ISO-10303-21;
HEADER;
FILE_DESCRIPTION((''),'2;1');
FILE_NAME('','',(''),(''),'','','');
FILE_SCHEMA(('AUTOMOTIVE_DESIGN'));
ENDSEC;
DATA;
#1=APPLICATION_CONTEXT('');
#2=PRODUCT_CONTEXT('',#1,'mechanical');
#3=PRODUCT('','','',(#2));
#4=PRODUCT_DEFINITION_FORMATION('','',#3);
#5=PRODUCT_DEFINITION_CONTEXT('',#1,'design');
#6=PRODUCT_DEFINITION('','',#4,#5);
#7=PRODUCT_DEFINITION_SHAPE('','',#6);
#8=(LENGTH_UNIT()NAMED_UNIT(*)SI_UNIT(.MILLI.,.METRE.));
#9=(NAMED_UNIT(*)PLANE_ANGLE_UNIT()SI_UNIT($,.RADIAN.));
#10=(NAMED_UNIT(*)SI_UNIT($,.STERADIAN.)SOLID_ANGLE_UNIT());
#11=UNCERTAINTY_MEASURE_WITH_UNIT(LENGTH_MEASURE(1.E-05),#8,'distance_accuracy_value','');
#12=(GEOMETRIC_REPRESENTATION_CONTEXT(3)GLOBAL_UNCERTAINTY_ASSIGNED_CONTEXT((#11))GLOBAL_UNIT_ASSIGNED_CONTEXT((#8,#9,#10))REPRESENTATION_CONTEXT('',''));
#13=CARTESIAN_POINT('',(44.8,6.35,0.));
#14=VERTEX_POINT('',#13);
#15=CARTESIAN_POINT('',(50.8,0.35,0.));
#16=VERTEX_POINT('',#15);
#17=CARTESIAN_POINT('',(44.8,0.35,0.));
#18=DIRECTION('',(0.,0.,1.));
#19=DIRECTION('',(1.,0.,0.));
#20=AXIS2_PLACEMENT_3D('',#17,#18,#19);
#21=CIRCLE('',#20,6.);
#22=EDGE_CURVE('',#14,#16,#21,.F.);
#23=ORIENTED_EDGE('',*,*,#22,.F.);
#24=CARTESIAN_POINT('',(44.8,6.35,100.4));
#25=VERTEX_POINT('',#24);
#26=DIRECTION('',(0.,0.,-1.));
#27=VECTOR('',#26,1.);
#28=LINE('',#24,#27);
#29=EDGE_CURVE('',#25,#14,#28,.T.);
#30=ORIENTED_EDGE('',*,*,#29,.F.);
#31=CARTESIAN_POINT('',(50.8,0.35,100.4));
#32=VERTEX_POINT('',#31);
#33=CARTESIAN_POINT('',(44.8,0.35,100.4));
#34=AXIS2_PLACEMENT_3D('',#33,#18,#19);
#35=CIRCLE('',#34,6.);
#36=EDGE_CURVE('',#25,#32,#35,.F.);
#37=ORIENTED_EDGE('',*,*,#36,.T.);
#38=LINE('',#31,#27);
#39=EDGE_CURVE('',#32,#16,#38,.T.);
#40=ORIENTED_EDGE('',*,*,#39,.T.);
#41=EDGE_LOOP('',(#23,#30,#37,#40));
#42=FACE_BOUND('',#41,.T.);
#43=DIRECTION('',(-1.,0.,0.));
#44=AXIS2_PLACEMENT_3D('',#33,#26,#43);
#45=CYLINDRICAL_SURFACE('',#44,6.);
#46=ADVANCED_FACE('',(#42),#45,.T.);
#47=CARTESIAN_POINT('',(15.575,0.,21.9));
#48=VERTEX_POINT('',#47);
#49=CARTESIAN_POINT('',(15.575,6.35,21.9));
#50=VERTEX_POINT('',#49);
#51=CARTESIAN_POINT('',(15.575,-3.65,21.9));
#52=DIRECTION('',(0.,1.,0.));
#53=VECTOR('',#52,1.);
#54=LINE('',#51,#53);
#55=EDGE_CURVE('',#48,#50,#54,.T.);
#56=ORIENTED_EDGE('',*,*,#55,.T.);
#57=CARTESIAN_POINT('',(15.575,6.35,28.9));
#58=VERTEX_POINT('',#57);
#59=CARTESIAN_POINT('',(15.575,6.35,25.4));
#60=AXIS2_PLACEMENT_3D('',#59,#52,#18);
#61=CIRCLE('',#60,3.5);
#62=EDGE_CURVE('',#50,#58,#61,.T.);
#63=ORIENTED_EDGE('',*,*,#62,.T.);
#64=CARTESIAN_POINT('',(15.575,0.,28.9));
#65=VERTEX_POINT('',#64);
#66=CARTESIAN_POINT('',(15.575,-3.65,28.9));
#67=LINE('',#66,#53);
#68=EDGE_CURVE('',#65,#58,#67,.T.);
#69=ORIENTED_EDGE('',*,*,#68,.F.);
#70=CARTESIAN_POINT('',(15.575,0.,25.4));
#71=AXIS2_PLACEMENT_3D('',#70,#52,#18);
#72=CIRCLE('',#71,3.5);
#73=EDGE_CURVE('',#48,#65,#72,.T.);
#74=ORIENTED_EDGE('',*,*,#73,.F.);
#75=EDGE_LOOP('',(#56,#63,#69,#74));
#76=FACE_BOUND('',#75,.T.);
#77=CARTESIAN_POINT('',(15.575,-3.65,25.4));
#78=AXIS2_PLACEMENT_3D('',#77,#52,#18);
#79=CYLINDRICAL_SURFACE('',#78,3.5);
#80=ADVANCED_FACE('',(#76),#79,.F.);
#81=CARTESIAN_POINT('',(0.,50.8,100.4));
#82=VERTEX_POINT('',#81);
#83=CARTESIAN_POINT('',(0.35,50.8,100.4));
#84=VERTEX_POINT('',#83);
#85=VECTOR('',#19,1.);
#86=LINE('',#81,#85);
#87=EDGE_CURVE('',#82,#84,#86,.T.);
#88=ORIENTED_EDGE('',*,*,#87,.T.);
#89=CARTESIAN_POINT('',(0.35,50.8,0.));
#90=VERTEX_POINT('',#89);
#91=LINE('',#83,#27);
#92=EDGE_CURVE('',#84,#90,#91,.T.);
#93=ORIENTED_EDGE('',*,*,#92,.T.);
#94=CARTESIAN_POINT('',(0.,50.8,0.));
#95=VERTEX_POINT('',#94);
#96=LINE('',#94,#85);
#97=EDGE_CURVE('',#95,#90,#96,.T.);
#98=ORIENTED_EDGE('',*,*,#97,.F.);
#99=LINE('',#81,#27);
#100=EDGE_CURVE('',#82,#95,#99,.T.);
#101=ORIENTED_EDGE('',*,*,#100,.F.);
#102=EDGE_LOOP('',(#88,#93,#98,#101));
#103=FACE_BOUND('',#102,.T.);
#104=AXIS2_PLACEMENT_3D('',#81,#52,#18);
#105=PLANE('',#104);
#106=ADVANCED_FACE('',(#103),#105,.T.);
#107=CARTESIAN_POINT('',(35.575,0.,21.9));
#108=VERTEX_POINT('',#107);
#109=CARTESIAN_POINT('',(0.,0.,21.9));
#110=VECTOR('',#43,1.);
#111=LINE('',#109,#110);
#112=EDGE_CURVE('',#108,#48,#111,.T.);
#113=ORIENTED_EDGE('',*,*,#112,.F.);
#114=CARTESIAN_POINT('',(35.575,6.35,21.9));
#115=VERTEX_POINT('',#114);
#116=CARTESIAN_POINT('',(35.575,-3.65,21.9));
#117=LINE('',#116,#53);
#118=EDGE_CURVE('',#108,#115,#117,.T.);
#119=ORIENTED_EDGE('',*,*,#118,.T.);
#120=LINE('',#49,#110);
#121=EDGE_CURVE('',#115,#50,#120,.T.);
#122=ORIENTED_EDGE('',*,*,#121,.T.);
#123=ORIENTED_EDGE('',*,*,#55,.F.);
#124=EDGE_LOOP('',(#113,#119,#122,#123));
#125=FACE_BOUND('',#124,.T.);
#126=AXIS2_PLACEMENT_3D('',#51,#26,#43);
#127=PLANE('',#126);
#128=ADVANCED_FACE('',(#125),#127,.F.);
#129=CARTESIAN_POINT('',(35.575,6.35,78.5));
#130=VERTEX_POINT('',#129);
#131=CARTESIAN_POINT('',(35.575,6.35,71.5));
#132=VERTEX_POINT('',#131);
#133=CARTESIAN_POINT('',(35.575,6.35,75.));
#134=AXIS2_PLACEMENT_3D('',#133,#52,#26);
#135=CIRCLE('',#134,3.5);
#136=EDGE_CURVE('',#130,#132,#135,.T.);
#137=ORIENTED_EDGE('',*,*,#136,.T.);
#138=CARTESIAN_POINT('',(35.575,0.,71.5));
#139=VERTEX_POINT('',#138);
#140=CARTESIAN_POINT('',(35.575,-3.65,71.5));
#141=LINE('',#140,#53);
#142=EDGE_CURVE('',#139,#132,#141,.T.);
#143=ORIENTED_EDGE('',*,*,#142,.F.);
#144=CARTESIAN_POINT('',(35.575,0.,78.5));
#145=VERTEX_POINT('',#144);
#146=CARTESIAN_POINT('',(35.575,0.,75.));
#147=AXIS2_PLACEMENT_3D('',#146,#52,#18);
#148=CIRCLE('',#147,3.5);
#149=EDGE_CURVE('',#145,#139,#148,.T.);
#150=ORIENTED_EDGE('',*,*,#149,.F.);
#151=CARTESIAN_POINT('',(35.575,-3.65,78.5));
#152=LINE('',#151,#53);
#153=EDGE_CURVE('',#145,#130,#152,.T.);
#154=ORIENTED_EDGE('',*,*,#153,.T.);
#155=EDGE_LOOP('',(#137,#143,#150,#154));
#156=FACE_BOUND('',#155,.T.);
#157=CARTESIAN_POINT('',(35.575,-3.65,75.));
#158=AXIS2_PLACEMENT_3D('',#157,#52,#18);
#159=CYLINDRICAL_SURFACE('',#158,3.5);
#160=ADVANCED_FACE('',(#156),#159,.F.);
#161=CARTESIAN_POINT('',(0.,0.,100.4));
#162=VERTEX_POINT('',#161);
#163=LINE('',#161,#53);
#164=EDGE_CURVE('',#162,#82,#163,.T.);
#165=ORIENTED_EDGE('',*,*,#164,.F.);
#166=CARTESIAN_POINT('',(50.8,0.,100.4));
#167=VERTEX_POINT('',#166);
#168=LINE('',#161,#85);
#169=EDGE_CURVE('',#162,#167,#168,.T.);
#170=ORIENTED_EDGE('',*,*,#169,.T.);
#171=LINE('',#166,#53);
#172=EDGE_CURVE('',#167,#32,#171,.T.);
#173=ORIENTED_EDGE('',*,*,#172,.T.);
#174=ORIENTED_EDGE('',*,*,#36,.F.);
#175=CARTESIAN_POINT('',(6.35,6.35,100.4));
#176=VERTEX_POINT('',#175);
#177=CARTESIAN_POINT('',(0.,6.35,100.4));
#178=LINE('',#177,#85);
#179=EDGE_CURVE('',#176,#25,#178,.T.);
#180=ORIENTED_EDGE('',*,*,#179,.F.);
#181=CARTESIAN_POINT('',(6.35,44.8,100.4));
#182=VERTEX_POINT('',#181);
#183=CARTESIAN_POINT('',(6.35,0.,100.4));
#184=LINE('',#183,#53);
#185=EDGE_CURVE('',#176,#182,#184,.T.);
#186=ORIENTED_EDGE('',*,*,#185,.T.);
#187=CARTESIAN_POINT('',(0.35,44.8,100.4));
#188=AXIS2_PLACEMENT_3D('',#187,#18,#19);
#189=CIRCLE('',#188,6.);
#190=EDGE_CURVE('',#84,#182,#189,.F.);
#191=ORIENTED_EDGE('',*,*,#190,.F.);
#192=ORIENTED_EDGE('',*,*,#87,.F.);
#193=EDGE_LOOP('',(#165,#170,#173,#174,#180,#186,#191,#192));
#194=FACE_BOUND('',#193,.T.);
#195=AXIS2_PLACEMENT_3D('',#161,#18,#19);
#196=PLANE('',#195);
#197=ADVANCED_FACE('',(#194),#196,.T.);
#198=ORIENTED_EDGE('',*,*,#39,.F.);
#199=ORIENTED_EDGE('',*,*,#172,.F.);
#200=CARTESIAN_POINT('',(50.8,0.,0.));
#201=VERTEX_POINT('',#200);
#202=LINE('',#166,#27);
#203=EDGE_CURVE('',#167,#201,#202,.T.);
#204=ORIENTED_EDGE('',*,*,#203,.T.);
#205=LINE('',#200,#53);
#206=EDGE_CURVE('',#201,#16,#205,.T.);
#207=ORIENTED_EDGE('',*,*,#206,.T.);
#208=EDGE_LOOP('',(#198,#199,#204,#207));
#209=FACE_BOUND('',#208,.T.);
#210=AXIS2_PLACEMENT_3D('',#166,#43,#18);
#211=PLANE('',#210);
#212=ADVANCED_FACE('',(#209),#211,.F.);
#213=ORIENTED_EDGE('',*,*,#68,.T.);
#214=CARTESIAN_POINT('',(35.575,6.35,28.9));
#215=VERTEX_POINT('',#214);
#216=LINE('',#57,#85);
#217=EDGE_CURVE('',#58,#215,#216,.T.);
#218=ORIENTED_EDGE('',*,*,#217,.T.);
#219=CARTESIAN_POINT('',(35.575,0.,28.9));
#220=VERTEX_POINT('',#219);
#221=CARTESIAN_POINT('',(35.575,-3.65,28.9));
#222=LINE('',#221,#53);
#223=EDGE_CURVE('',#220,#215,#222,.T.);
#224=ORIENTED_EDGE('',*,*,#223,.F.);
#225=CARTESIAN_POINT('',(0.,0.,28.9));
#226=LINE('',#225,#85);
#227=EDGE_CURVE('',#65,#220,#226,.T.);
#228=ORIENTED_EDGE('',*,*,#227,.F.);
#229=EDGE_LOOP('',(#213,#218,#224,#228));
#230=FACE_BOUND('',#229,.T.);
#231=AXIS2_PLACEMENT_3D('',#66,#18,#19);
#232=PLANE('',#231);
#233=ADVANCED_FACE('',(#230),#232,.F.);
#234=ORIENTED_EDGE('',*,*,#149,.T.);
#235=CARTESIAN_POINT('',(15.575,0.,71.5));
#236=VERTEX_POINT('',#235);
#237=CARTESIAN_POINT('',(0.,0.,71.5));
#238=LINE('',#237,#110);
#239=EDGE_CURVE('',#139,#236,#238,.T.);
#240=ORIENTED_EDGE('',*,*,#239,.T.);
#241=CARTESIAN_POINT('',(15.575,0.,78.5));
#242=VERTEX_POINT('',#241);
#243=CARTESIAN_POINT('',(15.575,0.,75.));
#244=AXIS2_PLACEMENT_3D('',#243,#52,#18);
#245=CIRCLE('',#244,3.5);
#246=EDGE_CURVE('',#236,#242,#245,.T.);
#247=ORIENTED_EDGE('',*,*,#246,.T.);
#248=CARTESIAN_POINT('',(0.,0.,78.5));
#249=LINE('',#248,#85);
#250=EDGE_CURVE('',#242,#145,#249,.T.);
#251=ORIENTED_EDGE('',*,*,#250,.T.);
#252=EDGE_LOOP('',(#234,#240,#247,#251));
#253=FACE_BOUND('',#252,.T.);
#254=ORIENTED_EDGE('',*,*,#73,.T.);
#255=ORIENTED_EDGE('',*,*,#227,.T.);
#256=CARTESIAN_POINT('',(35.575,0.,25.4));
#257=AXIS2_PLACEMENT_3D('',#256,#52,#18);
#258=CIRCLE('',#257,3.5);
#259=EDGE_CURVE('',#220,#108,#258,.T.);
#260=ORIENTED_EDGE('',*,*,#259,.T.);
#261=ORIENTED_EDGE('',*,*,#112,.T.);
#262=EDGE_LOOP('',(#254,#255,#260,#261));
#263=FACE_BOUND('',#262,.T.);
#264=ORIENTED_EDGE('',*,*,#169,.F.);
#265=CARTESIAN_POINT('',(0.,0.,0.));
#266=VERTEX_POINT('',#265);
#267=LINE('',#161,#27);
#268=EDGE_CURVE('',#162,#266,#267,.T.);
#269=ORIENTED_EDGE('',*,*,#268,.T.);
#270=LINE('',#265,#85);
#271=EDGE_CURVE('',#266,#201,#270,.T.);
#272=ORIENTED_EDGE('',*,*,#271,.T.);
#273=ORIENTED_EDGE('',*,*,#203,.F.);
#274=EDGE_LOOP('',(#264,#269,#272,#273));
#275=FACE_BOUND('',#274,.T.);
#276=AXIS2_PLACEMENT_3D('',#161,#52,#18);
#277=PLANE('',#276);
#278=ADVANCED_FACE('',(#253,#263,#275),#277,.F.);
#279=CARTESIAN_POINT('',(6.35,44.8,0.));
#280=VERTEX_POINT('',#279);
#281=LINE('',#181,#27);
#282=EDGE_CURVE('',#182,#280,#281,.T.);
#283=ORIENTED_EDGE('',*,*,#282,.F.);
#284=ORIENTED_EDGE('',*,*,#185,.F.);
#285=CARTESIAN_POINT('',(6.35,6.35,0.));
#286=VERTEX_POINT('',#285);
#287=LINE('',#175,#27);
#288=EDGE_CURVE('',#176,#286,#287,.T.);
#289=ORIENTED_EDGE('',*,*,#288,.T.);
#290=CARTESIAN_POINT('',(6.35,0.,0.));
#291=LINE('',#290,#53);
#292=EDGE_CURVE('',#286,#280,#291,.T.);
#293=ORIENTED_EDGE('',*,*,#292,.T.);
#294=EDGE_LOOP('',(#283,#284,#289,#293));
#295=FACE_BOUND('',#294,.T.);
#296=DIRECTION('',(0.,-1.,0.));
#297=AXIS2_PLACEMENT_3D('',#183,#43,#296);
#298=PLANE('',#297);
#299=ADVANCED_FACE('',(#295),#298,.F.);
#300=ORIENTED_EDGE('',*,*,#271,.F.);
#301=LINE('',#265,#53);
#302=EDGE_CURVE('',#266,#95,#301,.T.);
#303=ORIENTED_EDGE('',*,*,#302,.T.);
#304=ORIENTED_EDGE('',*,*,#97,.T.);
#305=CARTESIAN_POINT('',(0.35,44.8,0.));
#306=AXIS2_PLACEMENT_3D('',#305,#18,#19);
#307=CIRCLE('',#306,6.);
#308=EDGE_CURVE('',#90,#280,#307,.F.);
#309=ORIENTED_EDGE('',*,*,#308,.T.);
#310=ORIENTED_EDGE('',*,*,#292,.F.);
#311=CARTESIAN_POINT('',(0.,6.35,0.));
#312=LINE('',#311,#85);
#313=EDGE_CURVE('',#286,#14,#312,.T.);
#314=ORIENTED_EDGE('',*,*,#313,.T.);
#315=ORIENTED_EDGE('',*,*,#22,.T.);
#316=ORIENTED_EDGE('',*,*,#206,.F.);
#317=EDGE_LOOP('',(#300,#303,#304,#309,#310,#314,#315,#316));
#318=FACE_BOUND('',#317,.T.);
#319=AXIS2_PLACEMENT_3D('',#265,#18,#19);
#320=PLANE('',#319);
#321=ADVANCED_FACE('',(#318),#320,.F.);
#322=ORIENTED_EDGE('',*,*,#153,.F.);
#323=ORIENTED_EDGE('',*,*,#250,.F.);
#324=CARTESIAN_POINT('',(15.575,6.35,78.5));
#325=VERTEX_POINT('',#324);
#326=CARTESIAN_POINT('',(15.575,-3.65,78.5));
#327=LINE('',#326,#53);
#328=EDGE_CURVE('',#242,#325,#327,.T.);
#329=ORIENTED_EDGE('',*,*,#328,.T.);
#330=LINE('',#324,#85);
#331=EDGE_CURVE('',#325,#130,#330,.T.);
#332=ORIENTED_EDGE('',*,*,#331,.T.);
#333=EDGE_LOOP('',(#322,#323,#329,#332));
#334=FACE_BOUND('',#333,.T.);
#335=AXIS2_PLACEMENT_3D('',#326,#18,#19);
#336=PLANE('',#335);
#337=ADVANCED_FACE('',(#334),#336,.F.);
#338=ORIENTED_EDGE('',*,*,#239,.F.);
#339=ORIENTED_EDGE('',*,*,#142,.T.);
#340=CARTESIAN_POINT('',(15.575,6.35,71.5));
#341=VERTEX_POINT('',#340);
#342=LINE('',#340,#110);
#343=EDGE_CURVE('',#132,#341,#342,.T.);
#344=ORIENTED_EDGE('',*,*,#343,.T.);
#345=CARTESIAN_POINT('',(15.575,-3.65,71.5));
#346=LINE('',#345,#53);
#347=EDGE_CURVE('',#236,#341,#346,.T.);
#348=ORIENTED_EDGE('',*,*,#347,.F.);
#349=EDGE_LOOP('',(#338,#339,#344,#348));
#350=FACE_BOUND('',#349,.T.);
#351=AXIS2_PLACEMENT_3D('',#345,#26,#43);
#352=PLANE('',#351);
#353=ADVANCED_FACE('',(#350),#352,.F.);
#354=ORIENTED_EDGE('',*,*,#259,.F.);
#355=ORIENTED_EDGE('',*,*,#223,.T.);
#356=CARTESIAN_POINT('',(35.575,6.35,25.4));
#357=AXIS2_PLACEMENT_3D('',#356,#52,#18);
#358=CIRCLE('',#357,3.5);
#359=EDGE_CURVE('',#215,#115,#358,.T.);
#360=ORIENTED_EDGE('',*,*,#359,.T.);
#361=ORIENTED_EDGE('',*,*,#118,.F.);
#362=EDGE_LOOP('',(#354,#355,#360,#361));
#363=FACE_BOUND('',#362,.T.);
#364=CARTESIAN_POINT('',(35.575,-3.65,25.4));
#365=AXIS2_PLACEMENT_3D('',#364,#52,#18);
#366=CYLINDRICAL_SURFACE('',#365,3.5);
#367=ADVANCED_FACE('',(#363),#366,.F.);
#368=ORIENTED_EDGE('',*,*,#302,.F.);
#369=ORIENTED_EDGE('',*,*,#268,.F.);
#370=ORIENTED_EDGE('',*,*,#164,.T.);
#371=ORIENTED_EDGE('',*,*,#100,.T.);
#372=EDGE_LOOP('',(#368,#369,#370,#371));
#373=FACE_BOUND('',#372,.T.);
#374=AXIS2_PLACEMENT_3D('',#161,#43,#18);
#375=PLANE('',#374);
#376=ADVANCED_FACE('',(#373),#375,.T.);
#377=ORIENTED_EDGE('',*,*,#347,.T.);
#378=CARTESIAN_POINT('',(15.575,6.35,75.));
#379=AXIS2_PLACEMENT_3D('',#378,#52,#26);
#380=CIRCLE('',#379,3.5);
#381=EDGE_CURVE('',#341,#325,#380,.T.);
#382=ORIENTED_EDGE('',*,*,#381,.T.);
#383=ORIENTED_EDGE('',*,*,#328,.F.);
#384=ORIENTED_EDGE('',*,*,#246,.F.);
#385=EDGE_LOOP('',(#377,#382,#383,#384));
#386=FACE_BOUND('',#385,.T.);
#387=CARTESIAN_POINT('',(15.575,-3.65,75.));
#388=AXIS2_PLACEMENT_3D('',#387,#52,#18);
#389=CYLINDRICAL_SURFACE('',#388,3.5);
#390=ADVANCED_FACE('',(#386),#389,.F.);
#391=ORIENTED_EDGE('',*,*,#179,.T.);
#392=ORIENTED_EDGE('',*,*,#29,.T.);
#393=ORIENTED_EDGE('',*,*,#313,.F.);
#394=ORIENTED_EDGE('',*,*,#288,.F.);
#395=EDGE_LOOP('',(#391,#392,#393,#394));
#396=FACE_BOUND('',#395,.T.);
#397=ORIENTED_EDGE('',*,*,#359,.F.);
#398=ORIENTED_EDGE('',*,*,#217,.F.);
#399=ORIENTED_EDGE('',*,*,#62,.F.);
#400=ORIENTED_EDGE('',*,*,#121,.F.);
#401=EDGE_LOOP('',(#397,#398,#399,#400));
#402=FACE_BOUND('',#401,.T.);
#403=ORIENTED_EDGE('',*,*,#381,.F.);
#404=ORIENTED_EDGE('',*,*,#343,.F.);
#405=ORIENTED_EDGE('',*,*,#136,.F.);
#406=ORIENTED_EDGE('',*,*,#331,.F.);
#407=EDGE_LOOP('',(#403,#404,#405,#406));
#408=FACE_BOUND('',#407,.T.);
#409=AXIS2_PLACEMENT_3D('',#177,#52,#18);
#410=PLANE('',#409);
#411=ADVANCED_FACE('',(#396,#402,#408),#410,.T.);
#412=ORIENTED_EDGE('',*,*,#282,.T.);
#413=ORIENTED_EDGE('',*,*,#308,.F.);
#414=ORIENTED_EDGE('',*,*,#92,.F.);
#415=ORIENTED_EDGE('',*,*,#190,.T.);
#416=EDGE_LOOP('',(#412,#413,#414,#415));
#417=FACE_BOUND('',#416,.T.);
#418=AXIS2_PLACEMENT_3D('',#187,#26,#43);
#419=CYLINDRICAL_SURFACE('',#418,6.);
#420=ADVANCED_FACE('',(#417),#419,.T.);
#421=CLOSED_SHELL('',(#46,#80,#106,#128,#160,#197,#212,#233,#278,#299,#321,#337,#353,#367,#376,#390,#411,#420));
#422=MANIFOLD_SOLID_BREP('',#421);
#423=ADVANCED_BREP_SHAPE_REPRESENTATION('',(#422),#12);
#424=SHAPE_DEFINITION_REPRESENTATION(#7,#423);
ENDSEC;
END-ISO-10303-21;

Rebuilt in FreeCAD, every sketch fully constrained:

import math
import FreeCAD as App
import Part
import Sketcher
Q = App.Units.Quantity

doc = App.newDocument("Part")
body = doc.addObject("PartDesign::Body", "Body")

# Sketch on XY plane
sketch1 = body.newObject("Sketcher::SketchObject", "Sketch")
sketch1.AttachmentSupport = (doc.getObject("XY_Plane"), [""])
sketch1.MapMode = "FlatFace"
sketch1.addGeometry(Part.LineSegment(App.Vector(44.8, 6.35, 0), App.Vector(6.35, 6.35, 0)), False)
sketch1.addGeometry(Part.LineSegment(App.Vector(6.35, 6.35, 0), App.Vector(6.35, 44.8, 0)), False)
sketch1.addGeometry(Part.ArcOfCircle(Part.Circle(App.Vector(0.35, 44.8, 0), App.Vector(0, 0, 1), 6), math.radians(0), math.radians(90)), False)
sketch1.addGeometry(Part.LineSegment(App.Vector(0.35, 50.8, 0), App.Vector(0, 50.8, 0)), False)
sketch1.addGeometry(Part.LineSegment(App.Vector(0, 50.8, 0), App.Vector(0, 0, 0)), False)
sketch1.addGeometry(Part.LineSegment(App.Vector(0, 0, 0), App.Vector(50.8, 0, 0)), False)
sketch1.addGeometry(Part.LineSegment(App.Vector(50.8, 0, 0), App.Vector(50.8, 0.35, 0)), False)
sketch1.addGeometry(Part.ArcOfCircle(Part.Circle(App.Vector(44.8, 0.35, 0), App.Vector(0, 0, 1), 6), math.radians(0), math.radians(90)), False)
sketch1.addConstraint(Sketcher.Constraint("Coincident", 0, 2, 1, 1))
sketch1.addConstraint(Sketcher.Constraint("Tangent", 1, 2, 2, 1))
sketch1.addConstraint(Sketcher.Constraint("Tangent", 2, 2, 3, 1))
sketch1.addConstraint(Sketcher.Constraint("Coincident", 3, 2, 4, 1))
sketch1.addConstraint(Sketcher.Constraint("Coincident", 4, 2, 5, 1))
sketch1.addConstraint(Sketcher.Constraint("Coincident", 5, 2, 6, 1))
sketch1.addConstraint(Sketcher.Constraint("Tangent", 6, 2, 7, 1))
sketch1.addConstraint(Sketcher.Constraint("Tangent", 7, 2, 0, 1))
sketch1.addConstraint(Sketcher.Constraint("Horizontal", 0))
sketch1.addConstraint(Sketcher.Constraint("Vertical", 1))
sketch1.addConstraint(Sketcher.Constraint("Horizontal", 3))
sketch1.addConstraint(Sketcher.Constraint("Vertical", 4))
sketch1.addConstraint(Sketcher.Constraint("Horizontal", 5))
sketch1.addConstraint(Sketcher.Constraint("Vertical", 6))
sketch1.addConstraint(Sketcher.Constraint("Coincident", 4, 2, -1, 1))
sketch1.addConstraint(Sketcher.Constraint("Equal", 2, 7))
sketch1.addConstraint(Sketcher.Constraint("Equal", 0, 1))
sketch1.addConstraint(Sketcher.Constraint("Equal", 5, 4))
sketch1.addConstraint(Sketcher.Constraint("Radius", 2, Q("6 mm")))
sketch1.addConstraint(Sketcher.Constraint("DistanceX", 5, 1, 5, 2, Q("50.8 mm")))
sketch1.addConstraint(Sketcher.Constraint("DistanceX", 0, 2, 0, 1, Q("38.45 mm")))
pad1 = body.newObject("PartDesign::Pad", "Pad")
pad1.Profile = sketch1
pad1.Length = 100.4

# Sketch on XZ plane
sketch2 = body.newObject("Sketcher::SketchObject", "Sketch001")
sketch2.AttachmentSupport = (doc.getObject("XZ_Plane"), [""])
sketch2.MapMode = "FlatFace"
sketch2.AttachmentOffset = App.Placement(App.Vector(0, 0, -6.35), App.Rotation())
sketch2.addGeometry(Part.LineSegment(App.Vector(35.6, 21.9, 0), App.Vector(15.6, 21.9, 0)), False)
sketch2.addGeometry(Part.ArcOfCircle(Part.Circle(App.Vector(15.6, 25.4, 0), App.Vector(0, 0, 1), 3.5), math.radians(90), math.radians(270)), False)
sketch2.addGeometry(Part.LineSegment(App.Vector(15.6, 28.9, 0), App.Vector(35.6, 28.9, 0)), False)
sketch2.addGeometry(Part.ArcOfCircle(Part.Circle(App.Vector(35.6, 25.4, 0), App.Vector(0, 0, 1), 3.5), math.radians(-90), math.radians(90)), False)
sketch2.addGeometry(Part.LineSegment(App.Vector(15.6, 78.5, 0), App.Vector(35.6, 78.5, 0)), False)
sketch2.addGeometry(Part.ArcOfCircle(Part.Circle(App.Vector(35.6, 75, 0), App.Vector(0, 0, 1), 3.5), math.radians(-90), math.radians(90)), False)
sketch2.addGeometry(Part.LineSegment(App.Vector(35.6, 71.5, 0), App.Vector(15.6, 71.5, 0)), False)
sketch2.addGeometry(Part.ArcOfCircle(Part.Circle(App.Vector(15.6, 75, 0), App.Vector(0, 0, 1), 3.5), math.radians(90), math.radians(270)), False)
sketch2.addConstraint(Sketcher.Constraint("Tangent", 0, 2, 1, 2))
sketch2.addConstraint(Sketcher.Constraint("Tangent", 1, 1, 2, 1))
sketch2.addConstraint(Sketcher.Constraint("Tangent", 2, 2, 3, 2))
sketch2.addConstraint(Sketcher.Constraint("Tangent", 3, 1, 0, 1))
sketch2.addConstraint(Sketcher.Constraint("Tangent", 4, 2, 5, 2))
sketch2.addConstraint(Sketcher.Constraint("Tangent", 5, 1, 6, 1))
sketch2.addConstraint(Sketcher.Constraint("Tangent", 6, 2, 7, 2))
sketch2.addConstraint(Sketcher.Constraint("Tangent", 7, 1, 4, 1))
sketch2.addConstraint(Sketcher.Constraint("Horizontal", 0))
sketch2.addConstraint(Sketcher.Constraint("Horizontal", 2))
sketch2.addConstraint(Sketcher.Constraint("Horizontal", 4))
sketch2.addConstraint(Sketcher.Constraint("Horizontal", 6))
sketch2.addConstraint(Sketcher.Constraint("Equal", 3, 5))
sketch2.addConstraint(Sketcher.Constraint("Vertical", 3, 3, 5, 3))
sketch2.addConstraint(Sketcher.Constraint("Vertical", 1, 3, 7, 3))
sketch2.addConstraint(Sketcher.Constraint("Radius", 1, Q("3.5 mm")))
sketch2.addConstraint(Sketcher.Constraint("DistanceX", 0, 2, 0, 1, Q("20 mm")))
sketch2.addConstraint(Sketcher.Constraint("DistanceY", -1, 1, 5, 3, Q("75 mm")))
sketch2.addConstraint(Sketcher.Constraint("DistanceY", -1, 1, 1, 3, Q("25.4 mm")))
sketch2.addConstraint(Sketcher.Constraint("DistanceX", -1, 1, 1, 3, Q("15.575 mm")))
pocket1 = body.newObject("PartDesign::Pocket", "Pocket")
pocket1.Profile = sketch2
pocket1.Length = 10
pocket1.Reversed = True

doc.recompute()
